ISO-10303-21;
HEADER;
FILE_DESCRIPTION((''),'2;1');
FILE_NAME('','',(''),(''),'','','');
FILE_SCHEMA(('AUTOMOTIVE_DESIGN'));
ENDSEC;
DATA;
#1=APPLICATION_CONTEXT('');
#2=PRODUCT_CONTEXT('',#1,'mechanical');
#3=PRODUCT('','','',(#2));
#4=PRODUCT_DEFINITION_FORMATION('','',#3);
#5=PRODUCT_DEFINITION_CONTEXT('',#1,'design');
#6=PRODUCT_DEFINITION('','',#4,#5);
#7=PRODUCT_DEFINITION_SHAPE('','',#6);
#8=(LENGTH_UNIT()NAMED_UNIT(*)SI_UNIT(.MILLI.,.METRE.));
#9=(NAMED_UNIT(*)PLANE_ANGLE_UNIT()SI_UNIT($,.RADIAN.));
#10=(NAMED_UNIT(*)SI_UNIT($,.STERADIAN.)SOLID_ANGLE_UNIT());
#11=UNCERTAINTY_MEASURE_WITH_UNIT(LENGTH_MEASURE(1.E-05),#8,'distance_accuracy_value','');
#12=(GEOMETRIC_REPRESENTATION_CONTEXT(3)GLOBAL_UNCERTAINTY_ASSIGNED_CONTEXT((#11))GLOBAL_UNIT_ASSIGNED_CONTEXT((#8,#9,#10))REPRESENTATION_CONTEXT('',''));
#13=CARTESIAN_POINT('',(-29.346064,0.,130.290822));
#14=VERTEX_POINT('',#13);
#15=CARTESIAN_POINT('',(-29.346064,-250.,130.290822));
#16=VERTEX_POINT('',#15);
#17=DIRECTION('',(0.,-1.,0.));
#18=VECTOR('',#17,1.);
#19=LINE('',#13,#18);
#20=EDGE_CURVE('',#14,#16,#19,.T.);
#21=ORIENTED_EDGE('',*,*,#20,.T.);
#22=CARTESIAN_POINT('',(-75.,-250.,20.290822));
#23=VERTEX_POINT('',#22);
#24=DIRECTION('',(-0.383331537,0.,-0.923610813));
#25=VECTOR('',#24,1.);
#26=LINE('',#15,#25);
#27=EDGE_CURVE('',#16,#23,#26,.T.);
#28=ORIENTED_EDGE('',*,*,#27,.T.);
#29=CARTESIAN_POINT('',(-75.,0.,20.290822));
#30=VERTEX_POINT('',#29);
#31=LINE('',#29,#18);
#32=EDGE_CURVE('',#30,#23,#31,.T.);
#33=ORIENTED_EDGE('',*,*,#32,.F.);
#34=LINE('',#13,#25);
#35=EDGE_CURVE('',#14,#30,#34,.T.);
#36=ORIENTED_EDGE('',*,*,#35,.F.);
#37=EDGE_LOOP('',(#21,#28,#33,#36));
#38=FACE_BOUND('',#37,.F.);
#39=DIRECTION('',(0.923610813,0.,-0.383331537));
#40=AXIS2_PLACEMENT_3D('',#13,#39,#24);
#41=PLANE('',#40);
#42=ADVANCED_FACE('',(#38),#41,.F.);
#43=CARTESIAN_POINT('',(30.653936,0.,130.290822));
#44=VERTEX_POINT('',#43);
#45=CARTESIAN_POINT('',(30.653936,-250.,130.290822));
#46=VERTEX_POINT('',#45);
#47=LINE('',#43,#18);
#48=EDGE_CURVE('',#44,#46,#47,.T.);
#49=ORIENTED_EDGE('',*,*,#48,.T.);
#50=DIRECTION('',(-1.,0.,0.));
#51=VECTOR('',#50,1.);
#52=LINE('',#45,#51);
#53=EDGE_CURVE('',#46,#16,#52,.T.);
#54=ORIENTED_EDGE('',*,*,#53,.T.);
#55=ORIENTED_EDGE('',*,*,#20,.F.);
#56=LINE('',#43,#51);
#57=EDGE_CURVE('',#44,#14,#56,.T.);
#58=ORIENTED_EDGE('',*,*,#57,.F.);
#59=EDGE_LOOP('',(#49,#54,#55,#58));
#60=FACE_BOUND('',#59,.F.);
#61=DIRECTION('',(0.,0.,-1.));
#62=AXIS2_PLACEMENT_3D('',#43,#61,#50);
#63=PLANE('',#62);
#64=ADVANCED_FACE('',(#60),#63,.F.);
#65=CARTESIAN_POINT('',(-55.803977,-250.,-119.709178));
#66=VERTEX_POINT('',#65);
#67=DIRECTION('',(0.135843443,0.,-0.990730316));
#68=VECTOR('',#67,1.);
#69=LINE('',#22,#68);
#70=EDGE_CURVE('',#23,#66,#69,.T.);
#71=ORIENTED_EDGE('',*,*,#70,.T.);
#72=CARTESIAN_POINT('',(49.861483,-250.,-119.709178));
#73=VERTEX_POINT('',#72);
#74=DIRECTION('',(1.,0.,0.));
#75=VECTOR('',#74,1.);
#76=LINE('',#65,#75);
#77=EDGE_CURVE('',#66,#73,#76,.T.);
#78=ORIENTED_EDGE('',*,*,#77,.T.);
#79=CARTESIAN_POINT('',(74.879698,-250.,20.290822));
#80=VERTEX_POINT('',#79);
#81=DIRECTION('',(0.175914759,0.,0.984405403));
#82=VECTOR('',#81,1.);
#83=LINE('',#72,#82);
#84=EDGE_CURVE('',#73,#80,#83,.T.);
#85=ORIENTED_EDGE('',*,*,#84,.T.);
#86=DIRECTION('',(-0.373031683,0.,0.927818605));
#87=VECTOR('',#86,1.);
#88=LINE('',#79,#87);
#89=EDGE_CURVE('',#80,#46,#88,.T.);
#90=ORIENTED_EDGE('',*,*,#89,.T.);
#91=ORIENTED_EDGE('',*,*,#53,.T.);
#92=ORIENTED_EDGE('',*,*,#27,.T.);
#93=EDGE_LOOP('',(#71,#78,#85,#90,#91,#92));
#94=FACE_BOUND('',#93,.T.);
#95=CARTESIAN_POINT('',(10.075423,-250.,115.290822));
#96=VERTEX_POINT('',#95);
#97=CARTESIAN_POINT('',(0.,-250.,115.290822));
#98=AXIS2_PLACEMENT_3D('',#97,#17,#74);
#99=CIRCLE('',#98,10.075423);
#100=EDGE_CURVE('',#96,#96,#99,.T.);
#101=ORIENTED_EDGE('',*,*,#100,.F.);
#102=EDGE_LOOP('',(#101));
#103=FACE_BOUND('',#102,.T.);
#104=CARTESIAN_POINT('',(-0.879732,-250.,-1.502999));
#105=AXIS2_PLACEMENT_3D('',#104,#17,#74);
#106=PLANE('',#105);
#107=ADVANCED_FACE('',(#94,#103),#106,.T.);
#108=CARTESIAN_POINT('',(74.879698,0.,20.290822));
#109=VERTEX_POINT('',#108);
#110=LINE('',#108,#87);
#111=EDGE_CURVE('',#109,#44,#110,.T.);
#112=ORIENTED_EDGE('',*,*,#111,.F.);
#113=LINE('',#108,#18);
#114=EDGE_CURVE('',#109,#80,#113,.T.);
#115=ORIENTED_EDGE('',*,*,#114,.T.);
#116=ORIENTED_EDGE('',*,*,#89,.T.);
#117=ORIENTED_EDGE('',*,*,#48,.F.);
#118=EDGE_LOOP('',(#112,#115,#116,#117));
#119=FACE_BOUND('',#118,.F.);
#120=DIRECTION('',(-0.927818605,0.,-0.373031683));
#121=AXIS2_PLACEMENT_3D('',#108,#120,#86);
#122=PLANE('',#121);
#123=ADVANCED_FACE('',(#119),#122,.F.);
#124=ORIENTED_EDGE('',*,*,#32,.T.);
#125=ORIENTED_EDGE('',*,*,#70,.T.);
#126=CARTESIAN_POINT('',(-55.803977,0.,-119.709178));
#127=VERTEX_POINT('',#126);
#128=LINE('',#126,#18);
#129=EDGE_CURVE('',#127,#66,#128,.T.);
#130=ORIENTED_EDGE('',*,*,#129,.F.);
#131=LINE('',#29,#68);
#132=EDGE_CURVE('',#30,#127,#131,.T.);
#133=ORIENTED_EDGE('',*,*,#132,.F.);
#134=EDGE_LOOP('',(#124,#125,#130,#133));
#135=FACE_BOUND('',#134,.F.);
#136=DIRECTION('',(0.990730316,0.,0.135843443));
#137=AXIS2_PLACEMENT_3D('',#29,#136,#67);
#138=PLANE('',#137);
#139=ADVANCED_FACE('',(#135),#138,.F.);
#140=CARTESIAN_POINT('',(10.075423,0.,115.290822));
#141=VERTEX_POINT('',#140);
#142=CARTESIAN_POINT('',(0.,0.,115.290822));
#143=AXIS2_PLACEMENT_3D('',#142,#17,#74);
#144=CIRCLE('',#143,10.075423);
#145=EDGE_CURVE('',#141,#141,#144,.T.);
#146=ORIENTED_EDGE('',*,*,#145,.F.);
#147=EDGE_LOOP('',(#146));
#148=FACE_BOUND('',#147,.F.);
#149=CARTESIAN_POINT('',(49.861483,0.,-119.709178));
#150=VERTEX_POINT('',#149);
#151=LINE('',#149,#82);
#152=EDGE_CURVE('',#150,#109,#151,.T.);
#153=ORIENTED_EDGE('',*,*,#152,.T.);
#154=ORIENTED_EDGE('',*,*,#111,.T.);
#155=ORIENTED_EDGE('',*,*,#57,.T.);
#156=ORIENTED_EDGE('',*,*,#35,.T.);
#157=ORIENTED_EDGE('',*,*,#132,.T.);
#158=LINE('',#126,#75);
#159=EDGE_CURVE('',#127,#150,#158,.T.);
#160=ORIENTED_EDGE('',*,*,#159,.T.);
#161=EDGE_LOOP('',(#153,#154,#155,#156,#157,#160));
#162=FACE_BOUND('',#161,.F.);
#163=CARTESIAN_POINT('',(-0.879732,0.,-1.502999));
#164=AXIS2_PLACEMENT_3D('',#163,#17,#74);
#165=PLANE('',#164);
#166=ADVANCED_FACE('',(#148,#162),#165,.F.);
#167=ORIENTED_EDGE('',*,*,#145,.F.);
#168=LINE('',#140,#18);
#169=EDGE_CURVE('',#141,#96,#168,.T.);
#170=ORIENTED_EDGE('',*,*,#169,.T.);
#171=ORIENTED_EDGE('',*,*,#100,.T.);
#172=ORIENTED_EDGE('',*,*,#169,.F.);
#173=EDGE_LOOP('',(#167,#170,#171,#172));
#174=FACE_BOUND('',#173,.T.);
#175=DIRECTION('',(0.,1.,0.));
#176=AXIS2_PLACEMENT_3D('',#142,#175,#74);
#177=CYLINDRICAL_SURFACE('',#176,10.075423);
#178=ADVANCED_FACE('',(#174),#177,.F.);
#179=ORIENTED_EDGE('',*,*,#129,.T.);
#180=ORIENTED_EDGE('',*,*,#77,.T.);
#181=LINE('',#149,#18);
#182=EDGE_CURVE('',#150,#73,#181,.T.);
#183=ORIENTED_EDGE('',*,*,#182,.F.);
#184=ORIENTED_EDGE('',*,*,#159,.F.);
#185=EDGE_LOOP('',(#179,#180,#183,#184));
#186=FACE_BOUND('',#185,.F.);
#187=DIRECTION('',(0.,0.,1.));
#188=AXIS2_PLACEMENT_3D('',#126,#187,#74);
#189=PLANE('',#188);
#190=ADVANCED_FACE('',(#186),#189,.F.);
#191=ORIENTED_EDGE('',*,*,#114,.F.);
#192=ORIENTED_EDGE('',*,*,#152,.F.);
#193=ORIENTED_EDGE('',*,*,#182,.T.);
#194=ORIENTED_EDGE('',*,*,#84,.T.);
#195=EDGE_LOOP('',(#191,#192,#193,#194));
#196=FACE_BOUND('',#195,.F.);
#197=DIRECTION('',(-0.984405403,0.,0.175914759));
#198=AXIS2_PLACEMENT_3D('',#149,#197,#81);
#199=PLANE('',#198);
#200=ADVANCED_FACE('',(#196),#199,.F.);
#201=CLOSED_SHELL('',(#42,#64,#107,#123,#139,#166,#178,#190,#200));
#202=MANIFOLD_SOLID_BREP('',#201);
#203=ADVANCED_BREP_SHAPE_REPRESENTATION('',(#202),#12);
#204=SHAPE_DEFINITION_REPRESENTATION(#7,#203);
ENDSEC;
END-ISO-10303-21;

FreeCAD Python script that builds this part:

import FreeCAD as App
import Part
import Sketcher
from FreeCAD import Vector

doc = App.newDocument("Part")
body = doc.addObject("PartDesign::Body", "Body")

# Sketch on XZ plane
sketch1 = doc.addObject("Sketcher::SketchObject", "Sketch")
body.addObject(sketch1)
sketch1.AttachmentSupport = (doc.XZ_Plane, [""])
sketch1.MapMode = "FlatFace"
sketch1.addGeometry([
    Part.LineSegment(Vector(31, 130, 0), Vector(-29, 130, 0)),  # 0
    Part.LineSegment(Vector(-29, 130, 0), Vector(-75, 20, 0)),  # 1
    Part.LineSegment(Vector(-75, 20, 0), Vector(-56, -120, 0)),  # 2
    Part.LineSegment(Vector(-56, -120, 0), Vector(50, -120, 0)),  # 3
    Part.LineSegment(Vector(50, -120, 0), Vector(75, 20, 0)),  # 4
    Part.LineSegment(Vector(75, 20, 0), Vector(31, 130, 0)),  # 5
    Part.Circle(Vector(0, 115, 0), Vector(0, 0, 1), 10),  # 6
], False)
sketch1.addConstraint([
    Sketcher.Constraint("Coincident", 0, 2, 1, 1),
    Sketcher.Constraint("Coincident", 1, 2, 2, 1),
    Sketcher.Constraint("Coincident", 2, 2, 3, 1),
    Sketcher.Constraint("Coincident", 3, 2, 4, 1),
    Sketcher.Constraint("Coincident", 4, 2, 5, 1),
    Sketcher.Constraint("Coincident", 5, 2, 0, 1),
    Sketcher.Constraint("Horizontal", 0),
    Sketcher.Constraint("Horizontal", 3),
    Sketcher.Constraint("PointOnObject", 6, 3, -2),
    Sketcher.Constraint("Horizontal", 1, 2, 4, 2),
    Sketcher.Constraint("DistanceX", 0, 2, 0, 1, 60.0),
    Sketcher.Constraint("DistanceX", 1, 2, -1, 1, 75.0),
    Sketcher.Constraint("DistanceY", 6, 3, 0, 2, 15.0),
    Sketcher.Constraint("DistanceY", 1, 2, 0, 2, 110.0),
    Sketcher.Constraint("DistanceY", 2, 2, 1, 2, 140.0),
    Sketcher.Constraint("Diameter", 6, 20.150846),
    Sketcher.Constraint("Distance", 2, 141.309898),
    Sketcher.Constraint("DistanceX", 3, 1, 3, 2, 105.66546),
    Sketcher.Constraint("DistanceX", -1, 1, 4, 2, 74.879698),
    Sketcher.Constraint("Distance", 1, 119.097783),
    Sketcher.Constraint("DistanceY", -1, 1, 6, 3, 115.290822),
])
pad1 = doc.addObject("PartDesign::Pad", "Pad")
body.addObject(pad1)
pad1.Profile = sketch1
pad1.Length = 250

doc.recompute()
